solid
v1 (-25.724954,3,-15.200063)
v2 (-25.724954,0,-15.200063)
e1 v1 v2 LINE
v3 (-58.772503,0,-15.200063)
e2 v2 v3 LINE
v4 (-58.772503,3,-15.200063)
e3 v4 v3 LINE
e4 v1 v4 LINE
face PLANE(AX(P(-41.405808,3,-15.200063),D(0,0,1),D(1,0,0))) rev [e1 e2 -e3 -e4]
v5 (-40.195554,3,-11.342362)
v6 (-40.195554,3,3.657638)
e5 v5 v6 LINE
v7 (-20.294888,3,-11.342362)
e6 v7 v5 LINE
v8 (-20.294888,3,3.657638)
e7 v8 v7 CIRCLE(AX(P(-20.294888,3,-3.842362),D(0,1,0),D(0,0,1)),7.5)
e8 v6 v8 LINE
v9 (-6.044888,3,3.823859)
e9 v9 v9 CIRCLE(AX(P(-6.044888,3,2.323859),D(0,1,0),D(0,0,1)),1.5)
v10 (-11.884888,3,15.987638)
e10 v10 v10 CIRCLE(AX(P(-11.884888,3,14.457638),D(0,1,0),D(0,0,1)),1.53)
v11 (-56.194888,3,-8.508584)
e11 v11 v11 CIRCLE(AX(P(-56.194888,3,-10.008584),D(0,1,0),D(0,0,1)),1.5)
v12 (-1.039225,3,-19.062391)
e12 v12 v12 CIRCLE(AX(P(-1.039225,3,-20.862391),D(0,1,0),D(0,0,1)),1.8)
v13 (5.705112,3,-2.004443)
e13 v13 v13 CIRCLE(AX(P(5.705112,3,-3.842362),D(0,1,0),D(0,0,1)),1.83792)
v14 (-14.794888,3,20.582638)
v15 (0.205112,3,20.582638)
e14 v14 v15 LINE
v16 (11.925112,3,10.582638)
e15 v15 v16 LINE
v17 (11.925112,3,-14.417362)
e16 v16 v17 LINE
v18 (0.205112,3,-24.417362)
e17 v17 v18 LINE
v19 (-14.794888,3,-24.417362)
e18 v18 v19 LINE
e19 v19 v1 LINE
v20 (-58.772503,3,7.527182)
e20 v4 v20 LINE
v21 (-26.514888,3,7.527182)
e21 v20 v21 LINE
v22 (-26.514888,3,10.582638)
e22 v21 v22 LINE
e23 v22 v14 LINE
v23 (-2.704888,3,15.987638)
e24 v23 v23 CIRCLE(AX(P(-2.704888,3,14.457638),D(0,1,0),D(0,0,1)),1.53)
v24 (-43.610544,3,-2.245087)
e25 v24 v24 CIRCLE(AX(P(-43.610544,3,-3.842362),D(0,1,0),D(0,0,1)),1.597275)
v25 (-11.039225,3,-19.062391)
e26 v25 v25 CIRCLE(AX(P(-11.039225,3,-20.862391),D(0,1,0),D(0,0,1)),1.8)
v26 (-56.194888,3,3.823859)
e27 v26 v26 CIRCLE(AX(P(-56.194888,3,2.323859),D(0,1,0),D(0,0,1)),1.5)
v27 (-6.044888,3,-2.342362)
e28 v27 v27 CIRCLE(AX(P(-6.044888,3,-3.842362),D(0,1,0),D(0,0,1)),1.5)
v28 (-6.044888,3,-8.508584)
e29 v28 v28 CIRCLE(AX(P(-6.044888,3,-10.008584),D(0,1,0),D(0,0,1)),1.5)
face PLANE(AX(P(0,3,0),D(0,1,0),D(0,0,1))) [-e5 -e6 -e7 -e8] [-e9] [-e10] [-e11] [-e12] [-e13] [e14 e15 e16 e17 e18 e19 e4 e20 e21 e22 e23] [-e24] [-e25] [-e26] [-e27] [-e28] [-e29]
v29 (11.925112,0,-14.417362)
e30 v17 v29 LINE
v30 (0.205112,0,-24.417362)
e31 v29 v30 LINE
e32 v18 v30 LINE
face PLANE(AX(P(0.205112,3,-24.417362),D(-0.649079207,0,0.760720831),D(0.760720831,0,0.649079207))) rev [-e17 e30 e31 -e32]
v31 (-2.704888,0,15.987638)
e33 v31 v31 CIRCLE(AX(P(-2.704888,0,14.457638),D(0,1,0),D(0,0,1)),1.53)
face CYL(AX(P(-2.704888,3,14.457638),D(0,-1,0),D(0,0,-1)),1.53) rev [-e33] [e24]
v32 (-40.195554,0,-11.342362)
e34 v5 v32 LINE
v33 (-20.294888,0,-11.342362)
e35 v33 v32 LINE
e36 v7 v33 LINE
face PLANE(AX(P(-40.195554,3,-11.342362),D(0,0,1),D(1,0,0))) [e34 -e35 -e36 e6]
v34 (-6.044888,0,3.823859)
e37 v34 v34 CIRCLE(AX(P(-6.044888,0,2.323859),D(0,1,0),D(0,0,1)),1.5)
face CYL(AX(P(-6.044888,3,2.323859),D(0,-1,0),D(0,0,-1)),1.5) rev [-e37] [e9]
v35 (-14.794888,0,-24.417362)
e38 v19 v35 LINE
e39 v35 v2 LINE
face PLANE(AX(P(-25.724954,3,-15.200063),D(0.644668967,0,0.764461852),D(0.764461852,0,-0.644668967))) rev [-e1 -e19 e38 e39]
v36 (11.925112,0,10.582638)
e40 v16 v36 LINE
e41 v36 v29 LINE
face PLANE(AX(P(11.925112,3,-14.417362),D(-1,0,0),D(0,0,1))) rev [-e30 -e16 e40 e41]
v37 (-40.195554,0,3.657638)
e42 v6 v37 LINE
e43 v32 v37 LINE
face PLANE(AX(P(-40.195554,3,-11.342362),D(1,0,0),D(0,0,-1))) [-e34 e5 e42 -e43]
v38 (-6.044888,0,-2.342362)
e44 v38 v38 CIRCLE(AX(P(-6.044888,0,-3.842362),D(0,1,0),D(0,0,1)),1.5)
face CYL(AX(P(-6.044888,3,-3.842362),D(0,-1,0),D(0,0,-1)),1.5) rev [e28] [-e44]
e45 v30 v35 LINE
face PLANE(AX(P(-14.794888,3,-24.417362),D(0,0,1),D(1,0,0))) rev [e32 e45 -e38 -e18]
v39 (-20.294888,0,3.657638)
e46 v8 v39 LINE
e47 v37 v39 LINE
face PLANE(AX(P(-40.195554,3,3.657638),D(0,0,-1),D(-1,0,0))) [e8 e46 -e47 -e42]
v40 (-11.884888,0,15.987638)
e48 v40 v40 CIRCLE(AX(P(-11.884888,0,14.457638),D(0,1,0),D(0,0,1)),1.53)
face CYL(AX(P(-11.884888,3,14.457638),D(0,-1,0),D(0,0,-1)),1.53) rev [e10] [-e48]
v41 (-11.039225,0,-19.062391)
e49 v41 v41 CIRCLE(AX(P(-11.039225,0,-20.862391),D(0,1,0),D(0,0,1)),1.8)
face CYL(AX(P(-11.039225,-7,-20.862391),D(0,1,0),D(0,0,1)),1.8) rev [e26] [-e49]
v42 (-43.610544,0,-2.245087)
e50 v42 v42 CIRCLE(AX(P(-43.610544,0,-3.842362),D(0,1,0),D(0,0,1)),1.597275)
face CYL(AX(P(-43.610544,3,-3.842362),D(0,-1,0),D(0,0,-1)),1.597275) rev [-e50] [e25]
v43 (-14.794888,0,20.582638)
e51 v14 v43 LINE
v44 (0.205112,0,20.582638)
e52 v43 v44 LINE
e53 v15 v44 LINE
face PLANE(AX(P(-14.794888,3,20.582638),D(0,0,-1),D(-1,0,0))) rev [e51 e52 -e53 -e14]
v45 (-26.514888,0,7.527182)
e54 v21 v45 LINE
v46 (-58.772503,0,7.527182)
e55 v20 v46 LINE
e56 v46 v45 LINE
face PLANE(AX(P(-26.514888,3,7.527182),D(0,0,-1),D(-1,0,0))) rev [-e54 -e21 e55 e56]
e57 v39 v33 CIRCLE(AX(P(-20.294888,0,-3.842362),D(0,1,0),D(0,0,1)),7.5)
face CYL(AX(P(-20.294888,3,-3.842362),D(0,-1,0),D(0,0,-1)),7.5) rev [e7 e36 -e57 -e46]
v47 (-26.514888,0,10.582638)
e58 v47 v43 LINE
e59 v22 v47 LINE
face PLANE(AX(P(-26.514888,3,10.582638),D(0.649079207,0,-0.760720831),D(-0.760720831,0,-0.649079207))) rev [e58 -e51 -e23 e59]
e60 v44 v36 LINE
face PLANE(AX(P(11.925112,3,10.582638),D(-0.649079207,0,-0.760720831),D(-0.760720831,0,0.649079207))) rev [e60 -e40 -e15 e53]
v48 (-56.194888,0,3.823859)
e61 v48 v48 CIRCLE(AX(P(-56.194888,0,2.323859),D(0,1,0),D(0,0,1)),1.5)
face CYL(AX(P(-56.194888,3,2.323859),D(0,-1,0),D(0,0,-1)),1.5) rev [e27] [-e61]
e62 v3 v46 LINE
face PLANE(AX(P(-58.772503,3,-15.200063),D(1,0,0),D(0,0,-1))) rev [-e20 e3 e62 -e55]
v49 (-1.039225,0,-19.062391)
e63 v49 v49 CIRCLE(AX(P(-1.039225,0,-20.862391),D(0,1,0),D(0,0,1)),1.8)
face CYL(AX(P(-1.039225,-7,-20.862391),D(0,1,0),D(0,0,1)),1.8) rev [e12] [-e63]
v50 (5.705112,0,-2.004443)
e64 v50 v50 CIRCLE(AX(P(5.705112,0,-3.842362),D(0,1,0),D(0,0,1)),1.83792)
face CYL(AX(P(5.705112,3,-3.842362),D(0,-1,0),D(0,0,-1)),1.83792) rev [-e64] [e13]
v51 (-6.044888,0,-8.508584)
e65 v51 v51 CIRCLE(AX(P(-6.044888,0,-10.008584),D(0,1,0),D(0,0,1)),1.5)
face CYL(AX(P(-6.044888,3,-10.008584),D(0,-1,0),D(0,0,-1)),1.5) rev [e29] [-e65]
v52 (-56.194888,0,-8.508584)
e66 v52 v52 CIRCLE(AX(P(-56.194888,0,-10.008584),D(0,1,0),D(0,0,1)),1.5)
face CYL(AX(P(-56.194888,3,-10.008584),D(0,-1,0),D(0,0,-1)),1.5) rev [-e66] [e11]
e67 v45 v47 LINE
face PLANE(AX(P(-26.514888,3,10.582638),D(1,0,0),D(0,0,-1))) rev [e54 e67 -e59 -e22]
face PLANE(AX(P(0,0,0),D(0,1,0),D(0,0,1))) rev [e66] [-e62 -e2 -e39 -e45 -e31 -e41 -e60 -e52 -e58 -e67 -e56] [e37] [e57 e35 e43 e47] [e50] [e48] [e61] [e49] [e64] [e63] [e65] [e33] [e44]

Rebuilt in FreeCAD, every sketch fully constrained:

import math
import FreeCAD as App
import Part
import Sketcher

V = App.Vector


def add_polygon(sketch, points):
    """Adds a closed chain of lines whose ends are joined by coincident constraints."""
    first, n = sketch.GeometryCount, len(points)
    for a, b in zip(points, points[1:] + points[:1]):
        sketch.addGeometry(Part.LineSegment(App.Vector(*a, 0), App.Vector(*b, 0)), False)
    for i in range(n):
        sketch.addConstraint(Sketcher.Constraint("Coincident", first + i, 2, first + (i + 1) % n, 1))

doc = App.newDocument("Part")
params = doc.addObject("Spreadsheet::Sheet", "Params")
for row, (alias, value) in enumerate([
    ("sketch1_diameter", "3 mm"),
    ("sketch1_radius", "7.5 mm"),
    ("sketch1_diameter2", "3.06 mm"),
    ("sketch1_height", "25 mm"),
    ("pad1_length", "3 mm"),
    ("sketch2_diameter", "3.6 mm"),
    ("pocket1_length", "10 mm"),
], start=1):
    params.set(f"A{row}", alias)
    params.set(f"B{row}", "=" + value)
    params.setAlias(f"B{row}", alias)

body = doc.addObject("PartDesign::Body", "Body")

# Sketch on XZ plane
sketch1 = body.newObject("Sketcher::SketchObject", "Sketch")
sketch1.AttachmentSupport = (doc.getObject("XZ_Plane"), [""])
sketch1.MapMode = "FlatFace"
add_polygon(sketch1, [(-26.514888, 7.527182), (-26.514888, 10.582638), (-14.794888, 20.582638), (0.205112, 20.582638), (11.925112, 10.582638), (11.925112, -14.417362), (0.205112, -24.417362), (-14.794888, -24.417362), (-25.724954, -15.200063), (-58.772503, -15.200063), (-58.772503, 7.527182)])  # lines 0-10
sketch1.addGeometry(Part.Circle(V(-2.704888, 14.457638, 0), V(0, 0, 1), 1.53), False)  # 11
sketch1.addGeometry(Part.Circle(V(-11.884888, 14.457638, 0), V(0, 0, 1), 1.53), False)  # 12
sketch1.addGeometry(Part.Circle(V(-6.044888, 2.323859, 0), V(0, 0, 1), 1.5), False)  # 13
sketch1.addGeometry(Part.Circle(V(-56.194888, 2.323859, 0), V(0, 0, 1), 1.5), False)  # 14
sketch1.addGeometry(Part.Circle(V(5.705112, -3.842362, 0), V(0, 0, 1), 1.83792), False)  # 15
sketch1.addGeometry(Part.Circle(V(-6.044888, -3.842362, 0), V(0, 0, 1), 1.5), False)  # 16
sketch1.addGeometry(Part.Circle(V(-6.044888, -10.008584, 0), V(0, 0, 1), 1.5), False)  # 17
sketch1.addGeometry(Part.LineSegment(V(-40.195554, -11.342362, 0), V(-20.294888, -11.342362, 0)), False)  # 18
sketch1.addGeometry(Part.ArcOfCircle(Part.Circle(V(-20.294888, -3.842362, 0), V(0, 0, 1), 7.5), math.radians(-90), math.radians(90)), False)  # 19
sketch1.addGeometry(Part.LineSegment(V(-20.294888, 3.657638, 0), V(-40.195554, 3.657638, 0)), False)  # 20
sketch1.addGeometry(Part.LineSegment(V(-40.195554, 3.657638, 0), V(-40.195554, -11.342362, 0)), False)  # 21
sketch1.addGeometry(Part.Circle(V(-43.610544, -3.842362, 0), V(0, 0, 1), 1.597275), False)  # 22
sketch1.addGeometry(Part.Circle(V(-56.194888, -10.008584, 0), V(0, 0, 1), 1.5), False)  # 23
sketch1.addConstraint(Sketcher.Constraint("Tangent", 18, 2, 19, 1))
sketch1.addConstraint(Sketcher.Constraint("Tangent", 19, 2, 20, 1))
sketch1.addConstraint(Sketcher.Constraint("Coincident", 20, 2, 21, 1))
sketch1.addConstraint(Sketcher.Constraint("Coincident", 21, 2, 18, 1))
sketch1.addConstraint(Sketcher.Constraint("Vertical", 0))
sketch1.addConstraint(Sketcher.Constraint("Horizontal", 2))
sketch1.addConstraint(Sketcher.Constraint("Vertical", 4))
sketch1.addConstraint(Sketcher.Constraint("Horizontal", 6))
sketch1.addConstraint(Sketcher.Constraint("Horizontal", 8))
sketch1.addConstraint(Sketcher.Constraint("Vertical", 9))
sketch1.addConstraint(Sketcher.Constraint("Horizontal", 10))
sketch1.addConstraint(Sketcher.Constraint("Horizontal", 18))
sketch1.addConstraint(Sketcher.Constraint("Horizontal", 20))
sketch1.addConstraint(Sketcher.Constraint("Vertical", 21))
sketch1.addConstraint(Sketcher.Constraint("Equal", 11, 12))
sketch1.addConstraint(Sketcher.Constraint("Equal", 13, 14))
sketch1.addConstraint(Sketcher.Constraint("Equal", 14, 16))
sketch1.addConstraint(Sketcher.Constraint("Equal", 16, 17))
sketch1.addConstraint(Sketcher.Constraint("Equal", 17, 23))
sketch1.addConstraint(Sketcher.Constraint("Parallel", 1, 5))
sketch1.addConstraint(Sketcher.Constraint("Horizontal", 11, 3, 12, 3))
sketch1.addConstraint(Sketcher.Constraint("Horizontal", 13, 3, 14, 3))
sketch1.addConstraint(Sketcher.Constraint("Horizontal", 15, 3, 16, 3))
sketch1.addConstraint(Sketcher.Constraint("Horizontal", 16, 3, 19, 3))
sketch1.addConstraint(Sketcher.Constraint("Horizontal", 19, 3, 22, 3))
sketch1.addConstraint(Sketcher.Constraint("Horizontal", 17, 3, 23, 3))
sketch1.addConstraint(Sketcher.Constraint("Horizontal", 0, 2, 3, 2))
sketch1.addConstraint(Sketcher.Constraint("Vertical", 13, 3, 16, 3))
sketch1.addConstraint(Sketcher.Constraint("Vertical", 16, 3, 17, 3))
sketch1.addConstraint(Sketcher.Constraint("Vertical", 14, 3, 23, 3))
sketch1.addConstraint(Sketcher.Constraint("Vertical", 2, 2, 5, 2))
sketch1.addConstraint(Sketcher.Constraint("Vertical", 1, 2, 6, 2))
sketch1.addConstraint(Sketcher.Constraint("Equal", 6, 21))
sketch1.addConstraint(Sketcher.Constraint("Equal", 1, 3))
sketch1.addConstraint(Sketcher.Constraint("Diameter", 13, 3.0))
sketch1.addConstraint(Sketcher.Constraint("Radius", 19, 7.5))
sketch1.addConstraint(Sketcher.Constraint("Diameter", 11, 3.06))
sketch1.addConstraint(Sketcher.Constraint("DistanceY", 4, 2, 4, 1, 25.0))
sketch1.addConstraint(Sketcher.Constraint("DistanceY", 0, 2, 1, 2, 10.0))
sketch1.addConstraint(Sketcher.Constraint("DistanceY", 15, 3, 11, 3, 18.3))
sketch1.addConstraint(Sketcher.Constraint("DistanceX", 14, 3, 15, 3, 61.9))
sketch1.addConstraint(Sketcher.Constraint("DistanceX", 23, 3, 19, 3, 35.9))
sketch1.addConstraint(Sketcher.Constraint("DistanceX", 19, 3, 1, 2, 5.5))
sketch1.addConstraint(Sketcher.Constraint("Diameter", 15, 3.675839))
sketch1.addConstraint(Sketcher.Constraint("Diameter", 22, 3.19455))
sketch1.addConstraint(Sketcher.Constraint("DistanceX", 12, 3, 11, 3, 9.18))
sketch1.addConstraint(Sketcher.Constraint("DistanceX", 13, 3, 11, 3, 3.34))
sketch1.addConstraint(Sketcher.Constraint("DistanceX", 14, 3, 12, 3, 44.31))
sketch1.addConstraint(Sketcher.Constraint("DistanceX", 0, 2, 12, 3, 14.63))
sketch1.addConstraint(Sketcher.Constraint("DistanceY", 0, 2, 12, 3, 3.875))
sketch1.addConstraint(Sketcher.Constraint("DistanceX", 8, 2, 8, 1, 33.047549))
sketch1.addConstraint(Sketcher.Constraint("DistanceY", 7, 2, 19, 3, 11.3577))
sketch1.addConstraint(Sketcher.Constraint("DistanceX", 21, 2, 7, 2, 14.470601))
sketch1.addConstraint(Sketcher.Constraint("DistanceX", 10, 1, 10, 2, 32.257614))
sketch1.addConstraint(Sketcher.Constraint("DistanceY", 0, 1, 0, 2, 3.055456))
sketch1.addConstraint(Sketcher.Constraint("DistanceX", 11, 3, -1, 1, 2.704888))
sketch1.addConstraint(Sketcher.Constraint("DistanceY", -1, 1, 13, 3, 2.323859))
sketch1.addConstraint(Sketcher.Constraint("DistanceY", 13, 3, 11, 3, 12.133778))
sketch1.addConstraint(Sketcher.Constraint("DistanceY", 17, 3, 16, 3, 6.166222))
sketch1.addConstraint(Sketcher.Constraint("DistanceX", 22, 3, 7, 2, 17.88559))
sketch1.setExpression("Constraints[45]", "Params.sketch1_diameter")
sketch1.setExpression("Constraints[46]", "Params.sketch1_radius")
sketch1.setExpression("Constraints[47]", "Params.sketch1_diameter2")
sketch1.setExpression("Constraints[48]", "Params.sketch1_height")
pad1 = body.newObject("PartDesign::Pad", "Pad")
pad1.Profile = sketch1
pad1.setExpression("Length", "Params.pad1_length")
pad1.Reversed = True

# Sketch on XZ plane
sketch2 = body.newObject("Sketcher::SketchObject", "Sketch001")
sketch2.AttachmentSupport = (doc.getObject("XZ_Plane"), [""])
sketch2.MapMode = "FlatFace"
sketch2.AttachmentOffset = App.Placement(V(0, 0, -3), App.Rotation())
sketch2.addGeometry(Part.Circle(V(-11.039225, -20.862391, 0), V(0, 0, 1), 1.8), False)
sketch2.addGeometry(Part.Circle(V(-1.039225, -20.862391, 0), V(0, 0, 1), 1.8), False)
sketch2.addConstraint(Sketcher.Constraint("Equal", 0, 1))
sketch2.addConstraint(Sketcher.Constraint("Horizontal", 0, 3, 1, 3))
sketch2.addConstraint(Sketcher.Constraint("Diameter", 0, 3.6))
sketch2.addConstraint(Sketcher.Constraint("DistanceX", 0, 3, 1, 3, 10.0))
sketch2.addConstraint(Sketcher.Constraint("DistanceY", 0, 3, -1, 1, 20.862391))
sketch2.addConstraint(Sketcher.Constraint("DistanceX", 0, 3, -1, 1, 11.039225))
sketch2.setExpression("Constraints[2]", "Params.sketch2_diameter")
pocket1 = body.newObject("PartDesign::Pocket", "Pocket")
pocket1.Profile = sketch2
pocket1.setExpression("Length", "Params.pocket1_length")
pocket1.Reversed = True

doc.recompute()
